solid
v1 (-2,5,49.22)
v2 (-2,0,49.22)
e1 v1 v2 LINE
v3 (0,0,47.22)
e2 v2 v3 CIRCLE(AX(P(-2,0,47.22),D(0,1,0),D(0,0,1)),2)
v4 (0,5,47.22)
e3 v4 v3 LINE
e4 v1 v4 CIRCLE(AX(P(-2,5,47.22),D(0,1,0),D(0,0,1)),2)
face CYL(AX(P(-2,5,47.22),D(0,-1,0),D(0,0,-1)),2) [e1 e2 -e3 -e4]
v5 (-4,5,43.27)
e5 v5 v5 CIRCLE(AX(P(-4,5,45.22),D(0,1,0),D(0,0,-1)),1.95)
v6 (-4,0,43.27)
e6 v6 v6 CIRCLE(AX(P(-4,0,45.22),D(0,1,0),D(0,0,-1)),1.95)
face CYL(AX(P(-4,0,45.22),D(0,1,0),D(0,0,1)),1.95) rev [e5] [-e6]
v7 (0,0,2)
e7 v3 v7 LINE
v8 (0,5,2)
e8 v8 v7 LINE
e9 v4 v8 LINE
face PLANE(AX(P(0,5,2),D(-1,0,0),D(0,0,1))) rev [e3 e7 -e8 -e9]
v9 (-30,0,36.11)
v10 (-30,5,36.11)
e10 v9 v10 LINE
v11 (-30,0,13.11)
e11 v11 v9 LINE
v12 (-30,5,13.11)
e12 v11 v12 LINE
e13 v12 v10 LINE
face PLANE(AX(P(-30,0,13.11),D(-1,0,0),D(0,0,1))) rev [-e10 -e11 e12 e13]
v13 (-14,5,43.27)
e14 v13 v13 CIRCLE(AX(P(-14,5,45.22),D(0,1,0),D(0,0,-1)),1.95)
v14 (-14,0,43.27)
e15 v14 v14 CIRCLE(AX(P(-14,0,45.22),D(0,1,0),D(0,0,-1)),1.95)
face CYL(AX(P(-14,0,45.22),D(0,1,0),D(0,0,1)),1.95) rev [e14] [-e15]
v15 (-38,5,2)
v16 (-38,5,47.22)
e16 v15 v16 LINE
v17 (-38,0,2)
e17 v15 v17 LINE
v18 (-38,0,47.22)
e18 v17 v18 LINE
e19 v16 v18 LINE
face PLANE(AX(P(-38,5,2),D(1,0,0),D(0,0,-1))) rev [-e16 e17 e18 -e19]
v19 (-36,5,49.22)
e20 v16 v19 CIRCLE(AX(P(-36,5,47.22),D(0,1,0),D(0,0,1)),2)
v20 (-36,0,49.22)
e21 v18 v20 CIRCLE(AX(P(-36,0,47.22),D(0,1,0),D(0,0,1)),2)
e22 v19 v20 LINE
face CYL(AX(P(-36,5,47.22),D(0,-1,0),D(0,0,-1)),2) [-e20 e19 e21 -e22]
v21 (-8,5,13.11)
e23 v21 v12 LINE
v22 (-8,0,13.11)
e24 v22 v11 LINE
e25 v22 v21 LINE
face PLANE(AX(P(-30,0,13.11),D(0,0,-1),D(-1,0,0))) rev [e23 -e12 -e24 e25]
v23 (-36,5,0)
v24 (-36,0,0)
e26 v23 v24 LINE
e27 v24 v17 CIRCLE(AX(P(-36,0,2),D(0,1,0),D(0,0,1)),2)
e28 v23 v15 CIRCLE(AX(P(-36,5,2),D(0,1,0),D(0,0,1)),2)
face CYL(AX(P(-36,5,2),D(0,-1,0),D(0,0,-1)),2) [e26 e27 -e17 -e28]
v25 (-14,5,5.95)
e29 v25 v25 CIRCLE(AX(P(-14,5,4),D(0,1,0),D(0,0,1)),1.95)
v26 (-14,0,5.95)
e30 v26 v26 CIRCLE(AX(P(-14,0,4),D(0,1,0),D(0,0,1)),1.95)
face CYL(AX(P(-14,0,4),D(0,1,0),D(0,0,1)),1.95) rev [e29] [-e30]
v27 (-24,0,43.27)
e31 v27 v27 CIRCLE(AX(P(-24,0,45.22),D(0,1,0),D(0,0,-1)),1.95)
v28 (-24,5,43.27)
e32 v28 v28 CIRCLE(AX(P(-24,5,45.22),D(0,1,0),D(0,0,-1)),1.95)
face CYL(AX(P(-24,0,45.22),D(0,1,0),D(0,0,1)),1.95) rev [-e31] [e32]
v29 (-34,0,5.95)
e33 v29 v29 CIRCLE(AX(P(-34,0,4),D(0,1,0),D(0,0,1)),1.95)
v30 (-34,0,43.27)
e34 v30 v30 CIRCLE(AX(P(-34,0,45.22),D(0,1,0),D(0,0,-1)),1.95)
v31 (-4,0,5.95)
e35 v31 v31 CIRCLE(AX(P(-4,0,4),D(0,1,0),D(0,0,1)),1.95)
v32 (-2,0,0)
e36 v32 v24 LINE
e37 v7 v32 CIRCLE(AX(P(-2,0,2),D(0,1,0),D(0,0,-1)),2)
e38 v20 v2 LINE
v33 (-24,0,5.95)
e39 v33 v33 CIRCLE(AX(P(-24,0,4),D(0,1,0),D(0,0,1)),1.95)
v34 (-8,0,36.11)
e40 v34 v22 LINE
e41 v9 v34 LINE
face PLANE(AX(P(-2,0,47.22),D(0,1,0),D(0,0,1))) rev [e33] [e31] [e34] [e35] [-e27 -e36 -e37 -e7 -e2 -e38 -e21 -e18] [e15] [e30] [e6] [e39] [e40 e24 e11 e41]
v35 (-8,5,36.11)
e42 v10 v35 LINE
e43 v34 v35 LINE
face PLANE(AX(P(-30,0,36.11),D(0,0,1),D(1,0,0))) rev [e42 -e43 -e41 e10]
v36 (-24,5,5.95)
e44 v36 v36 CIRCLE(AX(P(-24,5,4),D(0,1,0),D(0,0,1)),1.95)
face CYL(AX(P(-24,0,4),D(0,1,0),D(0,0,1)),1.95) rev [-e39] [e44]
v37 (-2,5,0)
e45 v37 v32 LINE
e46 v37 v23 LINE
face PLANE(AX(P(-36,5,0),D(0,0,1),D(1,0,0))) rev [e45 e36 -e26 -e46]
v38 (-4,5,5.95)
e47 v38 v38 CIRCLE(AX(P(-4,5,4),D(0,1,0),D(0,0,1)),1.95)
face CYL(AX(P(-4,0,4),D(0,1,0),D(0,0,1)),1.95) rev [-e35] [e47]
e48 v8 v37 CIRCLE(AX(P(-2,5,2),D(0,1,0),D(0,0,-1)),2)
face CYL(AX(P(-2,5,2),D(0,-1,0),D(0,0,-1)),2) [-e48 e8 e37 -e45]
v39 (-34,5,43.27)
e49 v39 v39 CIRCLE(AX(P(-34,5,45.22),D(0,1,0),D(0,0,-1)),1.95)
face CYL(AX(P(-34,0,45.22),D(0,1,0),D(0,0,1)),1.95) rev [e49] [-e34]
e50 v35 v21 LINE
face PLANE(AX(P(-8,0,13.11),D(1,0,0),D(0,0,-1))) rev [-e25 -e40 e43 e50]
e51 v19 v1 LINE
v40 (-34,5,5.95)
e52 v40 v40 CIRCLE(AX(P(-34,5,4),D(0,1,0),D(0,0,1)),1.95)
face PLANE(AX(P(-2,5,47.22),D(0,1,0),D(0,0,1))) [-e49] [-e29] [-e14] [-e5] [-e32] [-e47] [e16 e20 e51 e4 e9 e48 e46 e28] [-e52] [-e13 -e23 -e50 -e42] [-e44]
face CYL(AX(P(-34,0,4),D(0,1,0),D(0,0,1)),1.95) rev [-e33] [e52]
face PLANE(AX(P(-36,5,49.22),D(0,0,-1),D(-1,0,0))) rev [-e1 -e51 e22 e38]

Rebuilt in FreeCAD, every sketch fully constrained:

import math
import FreeCAD as App
import Part
import Sketcher

V = App.Vector
Q = App.Units.Quantity

doc = App.newDocument("Part")
body = doc.addObject("PartDesign::Body", "Body")

# Sketch on XZ plane
sketch1 = doc.addObject("Sketcher::SketchObject", "Sketch")
body.addObject(sketch1)
sketch1.AttachmentSupport = (doc.XZ_Plane, [""])
sketch1.MapMode = "FlatFace"
sketch1.addGeometry([
    Part.LineSegment(V(-2, 0, 0), V(-36, 0, 0)),  # 0
    Part.ArcOfCircle(Part.Circle(V(-36, 2, 0), V(0, 0, 1), 2), math.radians(-180), math.radians(-90)),  # 1
    Part.LineSegment(V(-38, 2, 0), V(-38, 47.22, 0)),  # 2
    Part.ArcOfCircle(Part.Circle(V(-36, 47.22, 0), V(0, 0, 1), 2), math.radians(90), math.radians(180)),  # 3
    Part.LineSegment(V(-36, 49.22, 0), V(-2, 49.22, 0)),  # 4
    Part.ArcOfCircle(Part.Circle(V(-2, 47.22, 0), V(0, 0, 1), 2), math.radians(0), math.radians(90)),  # 5
    Part.LineSegment(V(0, 47.22, 0), V(0, 2, 0)),  # 6
    Part.ArcOfCircle(Part.Circle(V(-2, 2, 0), V(0, 0, 1), 2), math.radians(-90), math.radians(0)),  # 7
], False)
sketch1.addConstraint([
    Sketcher.Constraint("Tangent", 0, 2, 1, 2),
    Sketcher.Constraint("Tangent", 1, 1, 2, 1),
    Sketcher.Constraint("Tangent", 2, 2, 3, 2),
    Sketcher.Constraint("Tangent", 3, 1, 4, 1),
    Sketcher.Constraint("Tangent", 4, 2, 5, 2),
    Sketcher.Constraint("Tangent", 5, 1, 6, 1),
    Sketcher.Constraint("Tangent", 6, 2, 7, 2),
    Sketcher.Constraint("Tangent", 7, 1, 0, 1),
    Sketcher.Constraint("Horizontal", 0),
    Sketcher.Constraint("Vertical", 2),
    Sketcher.Constraint("Horizontal", 4),
    Sketcher.Constraint("Vertical", 6),
    Sketcher.Constraint("Equal", 1, 3),
    Sketcher.Constraint("Equal", 3, 5),
    Sketcher.Constraint("Equal", 5, 7),
    Sketcher.Constraint("PointOnObject", 0, 2, -1),
    Sketcher.Constraint("PointOnObject", 5, 1, -2),
    Sketcher.Constraint("Radius", 1, Q("2 mm")),
    Sketcher.Constraint("DistanceX", 0, 2, 0, 1, Q("34 mm")),
    Sketcher.Constraint("DistanceY", 2, 1, 2, 2, Q("45.22 mm")),
])
pad1 = doc.addObject("PartDesign::Pad", "Pad")
body.addObject(pad1)
pad1.Profile = sketch1
pad1.Length = 5
pad1.Reversed = True

# Sketch on XZ plane
sketch2 = doc.addObject("Sketcher::SketchObject", "Sketch001")
body.addObject(sketch2)
sketch2.AttachmentSupport = (doc.XZ_Plane, [""])
sketch2.MapMode = "FlatFace"
sketch2.AttachmentOffset = App.Placement(V(0, 0, -5), App.Rotation())
sketch2.addGeometry([
    Part.Circle(V(-4, 4, 0), V(0, 0, 1), 1.95),  # 0
    Part.Circle(V(-14, 4, 0), V(0, 0, 1), 1.95),  # 1
    Part.Circle(V(-24, 4, 0), V(0, 0, 1), 1.95),  # 2
    Part.Circle(V(-54, 4, 0), V(0, 0, 1), 1.95),  # 3
    Part.Circle(V(-34, 4, 0), V(0, 0, 1), 1.95),  # 4
    Part.Circle(V(-44, 4, 0), V(0, 0, 1), 1.95),  # 5
    Part.Circle(V(-44, 45.22, 0), V(0, 0, 1), 1.95),  # 6
    Part.Circle(V(-34, 45.22, 0), V(0, 0, 1), 1.95),  # 7
    Part.Circle(V(-54, 45.22, 0), V(0, 0, 1), 1.95),  # 8
    Part.Circle(V(-24, 45.22, 0), V(0, 0, 1), 1.95),  # 9
    Part.Circle(V(-14, 45.22, 0), V(0, 0, 1), 1.95),  # 10
    Part.Circle(V(-4, 45.22, 0), V(0, 0, 1), 1.95),  # 11
    Part.LineSegment(V(-30, 13.11, 0), V(-30, 36.11, 0)),  # 12
    Part.LineSegment(V(-30, 36.11, 0), V(-8, 36.11, 0)),  # 13
    Part.LineSegment(V(-8, 36.11, 0), V(-8, 13.11, 0)),  # 14
    Part.LineSegment(V(-8, 13.11, 0), V(-30, 13.11, 0)),  # 15
], False)
sketch2.addConstraint([
    Sketcher.Constraint("Coincident", 12, 2, 13, 1),
    Sketcher.Constraint("Coincident", 13, 2, 14, 1),
    Sketcher.Constraint("Coincident", 14, 2, 15, 1),
    Sketcher.Constraint("Coincident", 15, 2, 12, 1),
    Sketcher.Constraint("Vertical", 12),
    Sketcher.Constraint("Horizontal", 13),
    Sketcher.Constraint("Vertical", 14),
    Sketcher.Constraint("Horizontal", 15),
    Sketcher.Constraint("Equal", 0, 1),
    Sketcher.Constraint("Equal", 1, 2),
    Sketcher.Constraint("Equal", 2, 3),
    Sketcher.Constraint("Equal", 3, 4),
    Sketcher.Constraint("Equal", 4, 5),
    Sketcher.Constraint("Equal", 5, 6),
    Sketcher.Constraint("Equal", 6, 7),
    Sketcher.Constraint("Equal", 7, 8),
    Sketcher.Constraint("Equal", 8, 9),
    Sketcher.Constraint("Equal", 9, 10),
    Sketcher.Constraint("Equal", 10, 11),
    Sketcher.Constraint("Horizontal", 0, 3, 1, 3),
    Sketcher.Constraint("Horizontal", 1, 3, 2, 3),
    Sketcher.Constraint("Horizontal", 2, 3, 3, 3),
    Sketcher.Constraint("Horizontal", 3, 3, 4, 3),
    Sketcher.Constraint("Horizontal", 4, 3, 5, 3),
    Sketcher.Constraint("Horizontal", 6, 3, 7, 3),
    Sketcher.Constraint("Horizontal", 7, 3, 8, 3),
    Sketcher.Constraint("Horizontal", 8, 3, 9, 3),
    Sketcher.Constraint("Horizontal", 9, 3, 10, 3),
    Sketcher.Constraint("Horizontal", 10, 3, 11, 3),
    Sketcher.Constraint("Vertical", 5, 3, 6, 3),
    Sketcher.Constraint("Vertical", 4, 3, 7, 3),
    Sketcher.Constraint("Vertical", 3, 3, 8, 3),
    Sketcher.Constraint("Vertical", 2, 3, 9, 3),
    Sketcher.Constraint("Vertical", 1, 3, 10, 3),
    Sketcher.Constraint("Vertical", 0, 3, 11, 3),
    Sketcher.Constraint("Diameter", 0, Q("3.9 mm")),
    Sketcher.Constraint("DistanceX", 13, 1, 13, 2, Q("22 mm")),
    Sketcher.Constraint("DistanceY", 12, 1, 12, 2, Q("23 mm")),
    Sketcher.Constraint("DistanceX", 0, 3, -1, 1, Q("4 mm")),
    Sketcher.Constraint("DistanceY", -1, 1, 0, 3, Q("4 mm")),
    Sketcher.Constraint("DistanceX", 1, 3, -1, 1, Q("14 mm")),
    Sketcher.Constraint("DistanceX", 2, 3, -1, 1, Q("24 mm")),
    Sketcher.Constraint("DistanceX", 3, 3, -1, 1, Q("54 mm")),
    Sketcher.Constraint("DistanceX", 4, 3, -1, 1, Q("34 mm")),
    Sketcher.Constraint("DistanceX", 5, 3, -1, 1, Q("44 mm")),
    Sketcher.Constraint("DistanceX", 12, 2, -1, 1, Q("30 mm")),
    Sketcher.Constraint("DistanceY", -1, 1, 6, 3, Q("45.22 mm")),
    Sketcher.Constraint("DistanceY", -1, 1, 12, 2, Q("36.11 mm")),
])
pocket1 = doc.addObject("PartDesign::Pocket", "Pocket")
body.addObject(pocket1)
pocket1.Profile = sketch2
pocket1.Type = "ThroughAll"
pocket1.Reversed = True

doc.recompute()
